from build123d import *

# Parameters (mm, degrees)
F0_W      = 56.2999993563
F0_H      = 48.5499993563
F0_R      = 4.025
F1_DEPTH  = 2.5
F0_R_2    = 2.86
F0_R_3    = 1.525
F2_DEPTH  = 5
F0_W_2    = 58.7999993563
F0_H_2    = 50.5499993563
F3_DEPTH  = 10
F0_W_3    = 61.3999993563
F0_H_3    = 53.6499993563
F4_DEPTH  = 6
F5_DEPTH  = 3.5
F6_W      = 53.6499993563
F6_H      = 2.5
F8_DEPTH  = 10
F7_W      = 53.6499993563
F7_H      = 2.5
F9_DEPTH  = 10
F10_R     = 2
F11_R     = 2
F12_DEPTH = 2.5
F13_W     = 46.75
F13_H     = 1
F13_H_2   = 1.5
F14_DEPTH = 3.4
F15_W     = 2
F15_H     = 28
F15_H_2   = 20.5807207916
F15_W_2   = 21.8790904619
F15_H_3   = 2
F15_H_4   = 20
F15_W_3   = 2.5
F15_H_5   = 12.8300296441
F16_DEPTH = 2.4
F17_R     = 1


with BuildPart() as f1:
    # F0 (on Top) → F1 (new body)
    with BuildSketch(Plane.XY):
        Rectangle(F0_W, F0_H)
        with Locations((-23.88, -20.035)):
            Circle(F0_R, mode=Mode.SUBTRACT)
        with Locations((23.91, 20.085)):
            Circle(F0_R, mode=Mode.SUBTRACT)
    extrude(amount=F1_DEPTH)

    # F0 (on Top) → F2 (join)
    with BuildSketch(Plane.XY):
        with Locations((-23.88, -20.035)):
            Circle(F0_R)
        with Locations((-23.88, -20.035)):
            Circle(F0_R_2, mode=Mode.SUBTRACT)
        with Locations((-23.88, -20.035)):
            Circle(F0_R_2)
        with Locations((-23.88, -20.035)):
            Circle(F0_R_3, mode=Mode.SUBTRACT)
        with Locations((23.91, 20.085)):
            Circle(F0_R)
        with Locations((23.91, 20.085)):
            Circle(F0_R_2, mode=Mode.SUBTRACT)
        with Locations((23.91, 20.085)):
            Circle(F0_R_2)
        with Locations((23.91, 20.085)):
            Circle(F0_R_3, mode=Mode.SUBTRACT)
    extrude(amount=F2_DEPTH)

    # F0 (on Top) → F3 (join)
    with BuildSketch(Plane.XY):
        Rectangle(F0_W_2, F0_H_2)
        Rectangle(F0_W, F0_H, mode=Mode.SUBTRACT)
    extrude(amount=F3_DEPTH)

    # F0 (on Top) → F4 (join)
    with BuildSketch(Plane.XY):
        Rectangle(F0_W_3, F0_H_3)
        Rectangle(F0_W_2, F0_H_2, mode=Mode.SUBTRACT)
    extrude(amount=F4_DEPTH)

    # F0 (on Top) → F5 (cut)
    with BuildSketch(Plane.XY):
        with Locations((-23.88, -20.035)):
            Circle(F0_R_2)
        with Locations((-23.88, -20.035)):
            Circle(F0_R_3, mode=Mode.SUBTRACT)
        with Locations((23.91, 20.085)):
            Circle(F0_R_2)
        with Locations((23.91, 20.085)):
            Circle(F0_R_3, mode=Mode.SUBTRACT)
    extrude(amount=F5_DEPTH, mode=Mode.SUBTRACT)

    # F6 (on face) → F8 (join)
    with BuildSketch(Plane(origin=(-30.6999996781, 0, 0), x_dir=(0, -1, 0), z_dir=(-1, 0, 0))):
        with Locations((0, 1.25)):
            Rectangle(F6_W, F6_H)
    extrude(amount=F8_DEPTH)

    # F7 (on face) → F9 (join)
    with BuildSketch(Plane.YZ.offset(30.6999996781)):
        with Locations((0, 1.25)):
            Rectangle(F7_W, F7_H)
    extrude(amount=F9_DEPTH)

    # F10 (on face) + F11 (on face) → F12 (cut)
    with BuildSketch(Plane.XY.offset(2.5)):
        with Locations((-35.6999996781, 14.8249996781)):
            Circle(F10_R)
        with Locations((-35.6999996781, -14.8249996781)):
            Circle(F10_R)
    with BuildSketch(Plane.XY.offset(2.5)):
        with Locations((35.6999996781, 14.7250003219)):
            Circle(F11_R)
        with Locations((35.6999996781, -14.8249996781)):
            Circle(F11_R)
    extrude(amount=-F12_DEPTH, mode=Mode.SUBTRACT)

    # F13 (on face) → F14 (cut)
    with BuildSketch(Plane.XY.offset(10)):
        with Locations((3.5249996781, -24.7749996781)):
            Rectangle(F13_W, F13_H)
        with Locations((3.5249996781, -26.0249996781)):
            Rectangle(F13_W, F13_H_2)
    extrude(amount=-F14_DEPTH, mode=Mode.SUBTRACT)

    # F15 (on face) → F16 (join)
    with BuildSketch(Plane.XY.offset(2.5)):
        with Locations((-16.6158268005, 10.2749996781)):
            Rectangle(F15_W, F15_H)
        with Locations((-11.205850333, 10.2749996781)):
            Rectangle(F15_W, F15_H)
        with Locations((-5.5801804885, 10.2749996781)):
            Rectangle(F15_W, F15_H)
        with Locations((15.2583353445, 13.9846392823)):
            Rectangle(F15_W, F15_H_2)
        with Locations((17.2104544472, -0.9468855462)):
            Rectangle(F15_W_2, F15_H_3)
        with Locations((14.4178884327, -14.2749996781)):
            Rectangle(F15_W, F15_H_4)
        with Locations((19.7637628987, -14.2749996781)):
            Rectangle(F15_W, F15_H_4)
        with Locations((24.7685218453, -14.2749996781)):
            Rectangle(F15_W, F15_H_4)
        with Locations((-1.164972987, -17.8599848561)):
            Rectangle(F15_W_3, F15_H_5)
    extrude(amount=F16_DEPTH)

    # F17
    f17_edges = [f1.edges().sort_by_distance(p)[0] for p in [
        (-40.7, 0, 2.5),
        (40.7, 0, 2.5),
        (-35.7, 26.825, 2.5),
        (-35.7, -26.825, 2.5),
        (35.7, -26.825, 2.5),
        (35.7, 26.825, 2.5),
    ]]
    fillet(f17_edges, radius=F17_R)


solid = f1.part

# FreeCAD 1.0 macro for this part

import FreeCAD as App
import Part
import Sketcher


def edges_at(feature, points):
    """Names of the edges that pass closest to the given points."""
    edges = feature.Shape.Edges
    near = lambda p: min(range(len(edges)), key=lambda i: edges[i].distToShape(Part.Vertex(*p))[0])
    return sorted({f"Edge{near(p) + 1}" for p in points})

doc = App.newDocument("Part")
body = doc.addObject("PartDesign::Body", "Body")

# Sketch on XY plane
sketch1 = doc.addObject("Sketcher::SketchObject", "Sketch")
body.addObject(sketch1)
sketch1.AttachmentSupport = (doc.XY_Plane, [""])
sketch1.MapMode = "FlatFace"
sketch1.addGeometry([
    Part.LineSegment(App.Vector(-28.1, 24.3, 0), App.Vector(-28.1, -24.3, 0)),  # 0
    Part.LineSegment(App.Vector(-28.1, -24.3, 0), App.Vector(28.1, -24.3, 0)),  # 1
    Part.LineSegment(App.Vector(28.1, -24.3, 0), App.Vector(28.1, 24.3, 0)),  # 2
    Part.LineSegment(App.Vector(28.1, 24.3, 0), App.Vector(-28.1, 24.3, 0)),  # 3
    Part.Circle(App.Vector(-23.9, -20, 0), App.Vector(0, 0, 1), 4),  # 4
    Part.Circle(App.Vector(23.9, 20.1, 0), App.Vector(0, 0, 1), 4),  # 5
], False)
sketch1.addConstraint([
    Sketcher.Constraint("Coincident", 0, 2, 1, 1),
    Sketcher.Constraint("Coincident", 1, 2, 2, 1),
    Sketcher.Constraint("Coincident", 2, 2, 3, 1),
    Sketcher.Constraint("Coincident", 3, 2, 0, 1),
    Sketcher.Constraint("Vertical", 0),
    Sketcher.Constraint("Horizontal", 1),
    Sketcher.Constraint("Vertical", 2),
    Sketcher.Constraint("Horizontal", 3),
    Sketcher.Constraint("Equal", 4, 5),
    Sketcher.Constraint("Symmetric", 0, 2, 2, 2, -1, 1),
    Sketcher.Constraint("Diameter", 4, 8.05),
    Sketcher.Constraint("DistanceX", 1, 1, 1, 2, 56.299999),
    Sketcher.Constraint("DistanceY", 0, 2, 0, 1, 48.549999),
    Sketcher.Constraint("DistanceX", 4, 3, -1, 1, 23.88),
    Sketcher.Constraint("DistanceX", -1, 1, 5, 3, 23.91),
    Sketcher.Constraint("DistanceY", 4, 3, 5, 3, 40.12),
    Sketcher.Constraint("DistanceY", 0, 2, 4, 3, 4.24),
])
pad1 = doc.addObject("PartDesign::Pad", "Pad")
body.addObject(pad1)
pad1.Profile = sketch1
pad1.Length = 2.5

# Sketch on XY plane
sketch2 = doc.addObject("Sketcher::SketchObject", "Sketch001")
body.addObject(sketch2)
sketch2.AttachmentSupport = (doc.XY_Plane, [""])
sketch2.MapMode = "FlatFace"
sketch2.addGeometry([
    Part.Circle(App.Vector(-23.9, -20, 0), App.Vector(0, 0, 1), 4),
    Part.Circle(App.Vector(-23.9, -20, 0), App.Vector(0, 0, 1), 1.5),
    Part.Circle(App.Vector(23.9, 20.1, 0), App.Vector(0, 0, 1), 4),
    Part.Circle(App.Vector(23.9, 20.1, 0), App.Vector(0, 0, 1), 1.5),
], False)
sketch2.addConstraint([
    Sketcher.Constraint("Coincident", 1, 3, 0, 3),
    Sketcher.Constraint("Coincident", 3, 3, 2, 3),
    Sketcher.Constraint("Equal", 0, 2),
    Sketcher.Constraint("Equal", 1, 3),
    Sketcher.Constraint("Diameter", 0, 8.05),
    Sketcher.Constraint("Diameter", 1, 3.05),
    Sketcher.Constraint("DistanceX", 0, 3, -1, 1, 23.88),
    Sketcher.Constraint("DistanceX", -1, 1, 2, 3, 23.91),
    Sketcher.Constraint("DistanceY", 0, 3, 2, 3, 40.12),
    Sketcher.Constraint("DistanceY", 0, 3, -1, 1, 20.035),
])
pad2 = doc.addObject("PartDesign::Pad", "Pad001")
body.addObject(pad2)
pad2.Profile = sketch2
pad2.Length = 5

# Sketch on XY plane
sketch3 = doc.addObject("Sketcher::SketchObject", "Sketch002")
body.addObject(sketch3)
sketch3.AttachmentSupport = (doc.XY_Plane, [""])
sketch3.MapMode = "FlatFace"
sketch3.addGeometry([
    Part.LineSegment(App.Vector(-29, 25, 0), App.Vector(-29, -25, 0)),  # 0
    Part.LineSegment(App.Vector(-29, -25, 0), App.Vector(29, -25, 0)),  # 1
    Part.LineSegment(App.Vector(29, -25, 0), App.Vector(29, 25, 0)),  # 2
    Part.LineSegment(App.Vector(29, 25, 0), App.Vector(-29, 25, 0)),  # 3
    Part.LineSegment(App.Vector(28, -24, 0), App.Vector(-28, -24, 0)),  # 4
    Part.LineSegment(App.Vector(-28, -24, 0), App.Vector(-28, 24, 0)),  # 5
    Part.LineSegment(App.Vector(-28, 24, 0), App.Vector(28, 24, 0)),  # 6
    Part.LineSegment(App.Vector(28, 24, 0), App.Vector(28, -24, 0)),  # 7
], False)
sketch3.addConstraint([
    Sketcher.Constraint("Coincident", 0, 2, 1, 1),
    Sketcher.Constraint("Coincident", 1, 2, 2, 1),
    Sketcher.Constraint("Coincident", 2, 2, 3, 1),
    Sketcher.Constraint("Coincident", 3, 2, 0, 1),
    Sketcher.Constraint("Coincident", 4, 2, 5, 1),
    Sketcher.Constraint("Coincident", 5, 2, 6, 1),
    Sketcher.Constraint("Coincident", 6, 2, 7, 1),
    Sketcher.Constraint("Coincident", 7, 2, 4, 1),
    Sketcher.Constraint("Vertical", 0),
    Sketcher.Constraint("Horizontal", 1),
    Sketcher.Constraint("Vertical", 2),
    Sketcher.Constraint("Horizontal", 3),
    Sketcher.Constraint("Horizontal", 4),
    Sketcher.Constraint("Vertical", 5),
    Sketcher.Constraint("Horizontal", 6),
    Sketcher.Constraint("Vertical", 7),
    Sketcher.Constraint("Symmetric", 0, 2, 2, 2, -1, 1),
    Sketcher.Constraint("Symmetric", 4, 2, 6, 2, -1, 1),
    Sketcher.Constraint("DistanceX", 1, 1, 1, 2, 58.799999),
    Sketcher.Constraint("DistanceX", 4, 2, 4, 1, 56.299999),
    Sketcher.Constraint("DistanceY", 0, 2, 4, 2, 1.0),
    Sketcher.Constraint("DistanceY", 0, 2, 0, 1, 50.549999),
])
pad3 = doc.addObject("PartDesign::Pad", "Pad002")
body.addObject(pad3)
pad3.Profile = sketch3
pad3.Length = 10

# Sketch on XY plane
sketch4 = doc.addObject("Sketcher::SketchObject", "Sketch003")
body.addObject(sketch4)
sketch4.AttachmentSupport = (doc.XY_Plane, [""])
sketch4.MapMode = "FlatFace"
sketch4.addGeometry([
    Part.LineSegment(App.Vector(-31, 27, 0), App.Vector(-31, -27, 0)),  # 0
    Part.LineSegment(App.Vector(-31, -27, 0), App.Vector(31, -27, 0)),  # 1
    Part.LineSegment(App.Vector(31, -27, 0), App.Vector(31, 27, 0)),  # 2
    Part.LineSegment(App.Vector(31, 27, 0), App.Vector(-31, 27, 0)),  # 3
    Part.LineSegment(App.Vector(29, -25, 0), App.Vector(-29, -25, 0)),  # 4
    Part.LineSegment(App.Vector(-29, -25, 0), App.Vector(-29, 25, 0)),  # 5
    Part.LineSegment(App.Vector(-29, 25, 0), App.Vector(29, 25, 0)),  # 6
    Part.LineSegment(App.Vector(29, 25, 0), App.Vector(29, -25, 0)),  # 7
], False)
sketch4.addConstraint([
    Sketcher.Constraint("Coincident", 0, 2, 1, 1),
    Sketcher.Constraint("Coincident", 1, 2, 2, 1),
    Sketcher.Constraint("Coincident", 2, 2, 3, 1),
    Sketcher.Constraint("Coincident", 3, 2, 0, 1),
    Sketcher.Constraint("Coincident", 4, 2, 5, 1),
    Sketcher.Constraint("Coincident", 5, 2, 6, 1),
    Sketcher.Constraint("Coincident", 6, 2, 7, 1),
    Sketcher.Constraint("Coincident", 7, 2, 4, 1),
    Sketcher.Constraint("Vertical", 0),
    Sketcher.Constraint("Horizontal", 1),
    Sketcher.Constraint("Vertical", 2),
    Sketcher.Constraint("Horizontal", 3),
    Sketcher.Constraint("Horizontal", 4),
    Sketcher.Constraint("Vertical", 5),
    Sketcher.Constraint("Horizontal", 6),
    Sketcher.Constraint("Vertical", 7),
    Sketcher.Constraint("Symmetric", 0, 2, 2, 2, -1, 1),
    Sketcher.Constraint("Symmetric", 4, 2, 6, 2, -1, 1),
    Sketcher.Constraint("DistanceX", 1, 1, 1, 2, 61.399999),
    Sketcher.Constraint("DistanceX", 4, 2, 4, 1, 58.799999),
    Sketcher.Constraint("DistanceY", 0, 2, 0, 1, 53.649999),
    Sketcher.Constraint("DistanceY", 5, 1, 5, 2, 50.549999),
])
pad4 = doc.addObject("PartDesign::Pad", "Pad003")
body.addObject(pad4)
pad4.Profile = sketch4
pad4.Length = 6

# Sketch on XY plane
sketch5 = doc.addObject("Sketcher::SketchObject", "Sketch004")
body.addObject(sketch5)
sketch5.AttachmentSupport = (doc.XY_Plane, [""])
sketch5.MapMode = "FlatFace"
sketch5.addGeometry([
    Part.Circle(App.Vector(-23.9, -20, 0), App.Vector(0, 0, 1), 2.9),
    Part.Circle(App.Vector(-23.9, -20, 0), App.Vector(0, 0, 1), 1.5),
    Part.Circle(App.Vector(23.9, 20.1, 0), App.Vector(0, 0, 1), 2.9),
    Part.Circle(App.Vector(23.9, 20.1, 0), App.Vector(0, 0, 1), 1.5),
], False)
sketch5.addConstraint([
    Sketcher.Constraint("Coincident", 1, 3, 0, 3),
    Sketcher.Constraint("Coincident", 3, 3, 2, 3),
    Sketcher.Constraint("Equal", 0, 2),
    Sketcher.Constraint("Equal", 1, 3),
    Sketcher.Constraint("Diameter", 0, 5.72),
    Sketcher.Constraint("Diameter", 1, 3.05),
    Sketcher.Constraint("DistanceX", 0, 3, -1, 1, 23.88),
    Sketcher.Constraint("DistanceX", -1, 1, 2, 3, 23.91),
    Sketcher.Constraint("DistanceY", 0, 3, 2, 3, 40.12),
    Sketcher.Constraint("DistanceY", 0, 3, -1, 1, 20.035),
])
pocket1 = doc.addObject("PartDesign::Pocket", "Pocket")
body.addObject(pocket1)
pocket1.Profile = sketch5
pocket1.Length = 3.5
pocket1.Reversed = True

# Sketch on YZ plane
sketch6 = doc.addObject("Sketcher::SketchObject", "Sketch005")
body.addObject(sketch6)
sketch6.AttachmentSupport = (doc.YZ_Plane, [""])
sketch6.MapMode = "FlatFace"
sketch6.AttachmentOffset = App.Placement(App.Vector(0, 0, -30.7), App.Rotation())
sketch6.addGeometry([
    Part.LineSegment(App.Vector(26.8, 2.5, 0), App.Vector(26.8, 0, 0)),
    Part.LineSegment(App.Vector(26.8, 0, 0), App.Vector(-26.8, 0, 0)),
    Part.LineSegment(App.Vector(-26.8, 0, 0), App.Vector(-26.8, 2.5, 0)),
    Part.LineSegment(App.Vector(-26.8, 2.5, 0), App.Vector(26.8, 2.5, 0)),
], False)
sketch6.addConstraint([
    Sketcher.Constraint("Coincident", 0, 2, 1, 1),
    Sketcher.Constraint("Coincident", 1, 2, 2, 1),
    Sketcher.Constraint("Coincident", 2, 2, 3, 1),
    Sketcher.Constraint("Coincident", 3, 2, 0, 1),
    Sketcher.Constraint("Vertical", 0),
    Sketcher.Constraint("Horizontal", 1),
    Sketcher.Constraint("Vertical", 2),
    Sketcher.Constraint("Horizontal", 3),
    Sketcher.Constraint("Symmetric", 0, 2, 1, 2, -1, 1),
    Sketcher.Constraint("DistanceY", 0, 2, 0, 1, 2.5),
    Sketcher.Constraint("DistanceX", 1, 2, 1, 1, 53.649999),
])
pad5 = doc.addObject("PartDesign::Pad", "Pad004")
body.addObject(pad5)
pad5.Profile = sketch6
pad5.Length = 10
pad5.Reversed = True

# Sketch on YZ plane
sketch7 = doc.addObject("Sketcher::SketchObject", "Sketch006")
body.addObject(sketch7)
sketch7.AttachmentSupport = (doc.YZ_Plane, [""])
sketch7.MapMode = "FlatFace"
sketch7.AttachmentOffset = App.Placement(App.Vector(0, 0, 30.7), App.Rotation())
sketch7.addGeometry([
    Part.LineSegment(App.Vector(-26.8, 2.5, 0), App.Vector(-26.8, 0, 0)),
    Part.LineSegment(App.Vector(-26.8, 0, 0), App.Vector(26.8, 0, 0)),
    Part.LineSegment(App.Vector(26.8, 0, 0), App.Vector(26.8, 2.5, 0)),
    Part.LineSegment(App.Vector(26.8, 2.5, 0), App.Vector(-26.8, 2.5, 0)),
], False)
sketch7.addConstraint([
    Sketcher.Constraint("Coincident", 0, 2, 1, 1),
    Sketcher.Constraint("Coincident", 1, 2, 2, 1),
    Sketcher.Constraint("Coincident", 2, 2, 3, 1),
    Sketcher.Constraint("Coincident", 3, 2, 0, 1),
    Sketcher.Constraint("Vertical", 0),
    Sketcher.Constraint("Horizontal", 1),
    Sketcher.Constraint("Vertical", 2),
    Sketcher.Constraint("Horizontal", 3),
    Sketcher.Constraint("Symmetric", 0, 2, 1, 2, -1, 1),
    Sketcher.Constraint("DistanceY", 0, 2, 0, 1, 2.5),
    Sketcher.Constraint("DistanceX", 1, 1, 1, 2, 53.649999),
])
pad6 = doc.addObject("PartDesign::Pad", "Pad005")
body.addObject(pad6)
pad6.Profile = sketch7
pad6.Length = 10

# Sketch on XY plane
sketch8 = doc.addObject("Sketcher::SketchObject", "Sketch007")
body.addObject(sketch8)
sketch8.AttachmentSupport = (doc.XY_Plane, [""])
sketch8.MapMode = "FlatFace"
sketch8.AttachmentOffset = App.Placement(App.Vector(0, 0, 2.5), App.Rotation())
sketch8.addGeometry([
    Part.Circle(App.Vector(-35.7, 14.8, 0), App.Vector(0, 0, 1), 2),
    Part.Circle(App.Vector(-35.7, -14.8, 0), App.Vector(0, 0, 1), 2),
    Part.Circle(App.Vector(35.7, 14.7, 0), App.Vector(0, 0, 1), 2),
    Part.Circle(App.Vector(35.7, -14.8, 0), App.Vector(0, 0, 1), 2),
], False)
sketch8.addConstraint([
    Sketcher.Constraint("Equal", 0, 1),
    Sketcher.Constraint("Equal", 1, 2),
    Sketcher.Constraint("Equal", 2, 3),
    Sketcher.Constraint("Symmetric", 0, 3, 3, 3, -1, 1),
    Sketcher.Constraint("Symmetric", 1, 3, 3, 3, -2),
    Sketcher.Constraint("Vertical", 2, 3, 3, 3),
    Sketcher.Constraint("Diameter", 0, 4.0),
    Sketcher.Constraint("DistanceX", 0, 3, -1, 1, 35.7),
    Sketcher.Constraint("DistanceY", 2, 3, 0, 3, 0.099999),
    Sketcher.Constraint("DistanceY", 1, 3, 0, 3, 29.649999),
])
pocket2 = doc.addObject("PartDesign::Pocket", "Pocket001")
body.addObject(pocket2)
pocket2.Profile = sketch8
pocket2.Length = 2.5

# Sketch on XY plane
sketch9 = doc.addObject("Sketcher::SketchObject", "Sketch008")
body.addObject(sketch9)
sketch9.AttachmentSupport = (doc.XY_Plane, [""])
sketch9.MapMode = "FlatFace"
sketch9.AttachmentOffset = App.Placement(App.Vector(0, 0, 10), App.Rotation())
sketch9.addGeometry([
    Part.LineSegment(App.Vector(-19.9, -24.3, 0), App.Vector(-19.9, -26.8, 0)),
    Part.LineSegment(App.Vector(-19.9, -26.8, 0), App.Vector(26.9, -26.8, 0)),
    Part.LineSegment(App.Vector(26.9, -26.8, 0), App.Vector(26.9, -24.3, 0)),
    Part.LineSegment(App.Vector(26.9, -24.3, 0), App.Vector(-19.9, -24.3, 0)),
], False)
sketch9.addConstraint([
    Sketcher.Constraint("Coincident", 0, 2, 1, 1),
    Sketcher.Constraint("Coincident", 1, 2, 2, 1),
    Sketcher.Constraint("Coincident", 2, 2, 3, 1),
    Sketcher.Constraint("Coincident", 3, 2, 0, 1),
    Sketcher.Constraint("Vertical", 0),
    Sketcher.Constraint("Horizontal", 1),
    Sketcher.Constraint("Vertical", 2),
    Sketcher.Constraint("Horizontal", 3),
    Sketcher.Constraint("DistanceY", 0, 2, 0, 1, 2.5),
    Sketcher.Constraint("DistanceX", 1, 1, 1, 2, 46.75),
    Sketcher.Constraint("DistanceX", -1, 1, 1, 2, 26.9),
    Sketcher.Constraint("DistanceY", 0, 2, -1, 1, 26.775),
])
pocket3 = doc.addObject("PartDesign::Pocket", "Pocket002")
body.addObject(pocket3)
pocket3.Profile = sketch9
pocket3.Length = 3.4

# Sketch on XY plane
sketch10 = doc.addObject("Sketcher::SketchObject", "Sketch009")
body.addObject(sketch10)
sketch10.AttachmentSupport = (doc.XY_Plane, [""])
sketch10.MapMode = "FlatFace"
sketch10.AttachmentOffset = App.Placement(App.Vector(0, 0, 2.5), App.Rotation())
sketch10.addGeometry([
    Part.LineSegment(App.Vector(-17.6, 24.3, 0), App.Vector(-17.6, -3.7, 0)),  # 0
    Part.LineSegment(App.Vector(-17.6, -3.7, 0), App.Vector(-15.6, -3.7, 0)),  # 1
    Part.LineSegment(App.Vector(-15.6, -3.7, 0), App.Vector(-15.6, 24.3, 0)),  # 2
    Part.LineSegment(App.Vector(-15.6, 24.3, 0), App.Vector(-17.6, 24.3, 0)),  # 3
    Part.LineSegment(App.Vector(-12.2, 24.3, 0), App.Vector(-12.2, -3.7, 0)),  # 4
    Part.LineSegment(App.Vector(-12.2, -3.7, 0), App.Vector(-10.2, -3.7, 0)),  # 5
    Part.LineSegment(App.Vector(-10.2, -3.7, 0), App.Vector(-10.2, 24.3, 0)),  # 6
    Part.LineSegment(App.Vector(-10.2, 24.3, 0), App.Vector(-12.2, 24.3, 0)),  # 7
    Part.LineSegment(App.Vector(-6.6, 24.3, 0), App.Vector(-6.6, -3.7, 0)),  # 8
    Part.LineSegment(App.Vector(-6.6, -3.7, 0), App.Vector(-4.6, -3.7, 0)),  # 9
    Part.LineSegment(App.Vector(-4.6, -3.7, 0), App.Vector(-4.6, 24.3, 0)),  # 10
    Part.LineSegment(App.Vector(-4.6, 24.3, 0), App.Vector(-6.6, 24.3, 0)),  # 11
    Part.LineSegment(App.Vector(14.3, 24.3, 0), App.Vector(14.3, 3.7, 0)),  # 12
    Part.LineSegment(App.Vector(14.3, 3.7, 0), App.Vector(16.3, 3.7, 0)),  # 13
    Part.LineSegment(App.Vector(16.3, 3.7, 0), App.Vector(16.3, 24.3, 0)),  # 14
    Part.LineSegment(App.Vector(16.3, 24.3, 0), App.Vector(14.3, 24.3, 0)),  # 15
    Part.LineSegment(App.Vector(6.3, 0.1, 0), App.Vector(6.3, -1.9, 0)),  # 16
    Part.LineSegment(App.Vector(6.3, -1.9, 0), App.Vector(28.1, -1.9, 0)),  # 17
    Part.LineSegment(App.Vector(28.1, -1.9, 0), App.Vector(28.1, 0.1, 0)),  # 18
    Part.LineSegment(App.Vector(28.1, 0.1, 0), App.Vector(6.3, 0.1, 0)),  # 19
    Part.LineSegment(App.Vector(13.4, -4.3, 0), App.Vector(13.4, -24.3, 0)),  # 20
    Part.LineSegment(App.Vector(13.4, -24.3, 0), App.Vector(15.4, -24.3, 0)),  # 21
    Part.LineSegment(App.Vector(15.4, -24.3, 0), App.Vector(15.4, -4.3, 0)),  # 22
    Part.LineSegment(App.Vector(15.4, -4.3, 0), App.Vector(13.4, -4.3, 0)),  # 23
    Part.LineSegment(App.Vector(18.8, -4.3, 0), App.Vector(18.8, -24.3, 0)),  # 24
    Part.LineSegment(App.Vector(18.8, -24.3, 0), App.Vector(20.8, -24.3, 0)),  # 25
    Part.LineSegment(App.Vector(20.8, -24.3, 0), App.Vector(20.8, -4.3, 0)),  # 26
    Part.LineSegment(App.Vector(20.8, -4.3, 0), App.Vector(18.8, -4.3, 0)),  # 27
    Part.LineSegment(App.Vector(23.8, -4.3, 0), App.Vector(23.8, -24.3, 0)),  # 28
    Part.LineSegment(App.Vector(23.8, -24.3, 0), App.Vector(25.8, -24.3, 0)),  # 29
    Part.LineSegment(App.Vector(25.8, -24.3, 0), App.Vector(25.8, -4.3, 0)),  # 30
    Part.LineSegment(App.Vector(25.8, -4.3, 0), App.Vector(23.8, -4.3, 0)),  # 31
    Part.LineSegment(App.Vector(-2.4, -11.4, 0), App.Vector(-2.4, -24.3, 0)),  # 32
    Part.LineSegment(App.Vector(-2.4, -24.3, 0), App.Vector(0.1, -24.3, 0)),  # 33
    Part.LineSegment(App.Vector(0.1, -24.3, 0), App.Vector(0.1, -11.4, 0)),  # 34
    Part.LineSegment(App.Vector(0.1, -11.4, 0), App.Vector(-2.4, -11.4, 0)),  # 35
], False)
sketch10.addConstraint([
    Sketcher.Constraint("Coincident", 0, 2, 1, 1),
    Sketcher.Constraint("Coincident", 1, 2, 2, 1),
    Sketcher.Constraint("Coincident", 2, 2, 3, 1),
    Sketcher.Constraint("Coincident", 3, 2, 0, 1),
    Sketcher.Constraint("Coincident", 4, 2, 5, 1),
    Sketcher.Constraint("Coincident", 5, 2, 6, 1),
    Sketcher.Constraint("Coincident", 6, 2, 7, 1),
    Sketcher.Constraint("Coincident", 7, 2, 4, 1),
    Sketcher.Constraint("Coincident", 8, 2, 9, 1),
    Sketcher.Constraint("Coincident", 9, 2, 10, 1),
    Sketcher.Constraint("Coincident", 10, 2, 11, 1),
    Sketcher.Constraint("Coincident", 11, 2, 8, 1),
    Sketcher.Constraint("Coincident", 12, 2, 13, 1),
    Sketcher.Constraint("Coincident", 13, 2, 14, 1),
    Sketcher.Constraint("Coincident", 14, 2, 15, 1),
    Sketcher.Constraint("Coincident", 15, 2, 12, 1),
    Sketcher.Constraint("Coincident", 16, 2, 17, 1),
    Sketcher.Constraint("Coincident", 17, 2, 18, 1),
    Sketcher.Constraint("Coincident", 18, 2, 19, 1),
    Sketcher.Constraint("Coincident", 19, 2, 16, 1),
    Sketcher.Constraint("Coincident", 20, 2, 21, 1),
    Sketcher.Constraint("Coincident", 21, 2, 22, 1),
    Sketcher.Constraint("Coincident", 22, 2, 23, 1),
    Sketcher.Constraint("Coincident", 23, 2, 20, 1),
    Sketcher.Constraint("Coincident", 24, 2, 25, 1),
    Sketcher.Constraint("Coincident", 25, 2, 26, 1),
    Sketcher.Constraint("Coincident", 26, 2, 27, 1),
    Sketcher.Constraint("Coincident", 27, 2, 24, 1),
    Sketcher.Constraint("Coincident", 28, 2, 29, 1),
    Sketcher.Constraint("Coincident", 29, 2, 30, 1),
    Sketcher.Constraint("Coincident", 30, 2, 31, 1),
    Sketcher.Constraint("Coincident", 31, 2, 28, 1),
    Sketcher.Constraint("Coincident", 32, 2, 33, 1),
    Sketcher.Constraint("Coincident", 33, 2, 34, 1),
    Sketcher.Constraint("Coincident", 34, 2, 35, 1),
    Sketcher.Constraint("Coincident", 35, 2, 32, 1),
    Sketcher.Constraint("Vertical", 0),
    Sketcher.Constraint("Horizontal", 1),
    Sketcher.Constraint("Vertical", 2),
    Sketcher.Constraint("Horizontal", 3),
    Sketcher.Constraint("Vertical", 4),
    Sketcher.Constraint("Horizontal", 5),
    Sketcher.Constraint("Vertical", 6),
    Sketcher.Constraint("Horizontal", 7),
    Sketcher.Constraint("Vertical", 8),
    Sketcher.Constraint("Horizontal", 9),
    Sketcher.Constraint("Vertical", 10),
    Sketcher.Constraint("Horizontal", 11),
    Sketcher.Constraint("Vertical", 12),
    Sketcher.Constraint("Horizontal", 13),
    Sketcher.Constraint("Vertical", 14),
    Sketcher.Constraint("Horizontal", 15),
    Sketcher.Constraint("Vertical", 16),
    Sketcher.Constraint("Horizontal", 17),
    Sketcher.Constraint("Vertical", 18),
    Sketcher.Constraint("Horizontal", 19),
    Sketcher.Constraint("Vertical", 20),
    Sketcher.Constraint("Horizontal", 21),
    Sketcher.Constraint("Vertical", 22),
    Sketcher.Constraint("Horizontal", 23),
    Sketcher.Constraint("Vertical", 24),
    Sketcher.Constraint("Horizontal", 25),
    Sketcher.Constraint("Vertical", 26),
    Sketcher.Constraint("Horizontal", 27),
    Sketcher.Constraint("Vertical", 28),
    Sketcher.Constraint("Horizontal", 29),
    Sketcher.Constraint("Vertical", 30),
    Sketcher.Constraint("Horizontal", 31),
    Sketcher.Constraint("Vertical", 32),
    Sketcher.Constraint("Horizontal", 33),
    Sketcher.Constraint("Vertical", 34),
    Sketcher.Constraint("Horizontal", 35),
    Sketcher.Constraint("Horizontal", 1, 2, 4, 2),
    Sketcher.Constraint("Horizontal", 3, 2, 6, 2),
    Sketcher.Constraint("Horizontal", 5, 2, 8, 2),
    Sketcher.Constraint("Horizontal", 7, 2, 10, 2),
    Sketcher.Constraint("Horizontal", 11, 2, 14, 2),
    Sketcher.Constraint("Horizontal", 21, 2, 24, 2),
    Sketcher.Constraint("Horizontal", 23, 2, 26, 2),
    Sketcher.Constraint("Horizontal", 25, 2, 28, 2),
    Sketcher.Constraint("Horizontal", 27, 2, 30, 2),
    Sketcher.Constraint("Horizontal", 29, 2, 32, 2),
    Sketcher.Constraint("Equal", 3, 5),
    Sketcher.Constraint("Equal", 7, 9),
    Sketcher.Constraint("Equal", 11, 13),
    Sketcher.Constraint("Equal", 15, 21),
    Sketcher.Constraint("Equal", 23, 25),
    Sketcher.Constraint("Equal", 27, 29),
    Sketcher.Constraint("Equal", 31, 16),
    Sketcher.Constraint("DistanceX", 1, 1, 1, 2, 2.0),
    Sketcher.Constraint("DistanceY", 0, 2, 0, 1, 28.0),
    Sketcher.Constraint("DistanceY", 20, 2, 20, 1, 20.0),
    Sketcher.Constraint("DistanceX", 33, 1, 33, 2, 2.5),
    Sketcher.Constraint("DistanceX", -1, 1, 17, 2, 28.15),
    Sketcher.Constraint("DistanceY", 20, 2, 9, 2, 20.549999),
    Sketcher.Constraint("DistanceY", 0, 2, -1, 1, 3.725),
    Sketcher.Constraint("DistanceX", 17, 1, 17, 2, 21.87909),
    Sketcher.Constraint("DistanceY", 12, 2, 12, 1, 20.580721),
    Sketcher.Constraint("DistanceY", 32, 2, 32, 1, 12.83003),
    Sketcher.Constraint("DistanceX", 4, 2, -1, 1, 12.20585),
    Sketcher.Constraint("DistanceX", 8, 2, -1, 1, 6.58018),
    Sketcher.Constraint("DistanceX", -1, 1, 20, 2, 13.417888),
    Sketcher.Constraint("DistanceX", -1, 1, 28, 2, 23.768522),
    Sketcher.Constraint("DistanceX", 25, 2, 28, 2, 3.004759),
    Sketcher.Constraint("DistanceX", 32, 2, 20, 2, 15.832861),
    Sketcher.Constraint("DistanceX", 0, 2, -1, 1, 17.615827),
    Sketcher.Constraint("DistanceX", -1, 1, 12, 2, 14.258335),
    Sketcher.Constraint("DistanceY", 16, 2, -1, 1, 1.946886),
])
pad7 = doc.addObject("PartDesign::Pad", "Pad006")
body.addObject(pad7)
pad7.Profile = sketch10
pad7.Length = 2.4
doc.recompute()

fillet = doc.addObject("PartDesign::Fillet", "Fillet")
body.addObject(fillet)
fillet.Base = (pad7, edges_at(pad7, [
    (-40.7, 0, 2.5),
    (40.7, 0, 2.5),
    (-35.7, 26.825, 2.5),
    (-35.7, -26.825, 2.5),
    (35.7, -26.825, 2.5),
    (35.7, 26.825, 2.5),
]))
fillet.Radius = 1

doc.recompute()
